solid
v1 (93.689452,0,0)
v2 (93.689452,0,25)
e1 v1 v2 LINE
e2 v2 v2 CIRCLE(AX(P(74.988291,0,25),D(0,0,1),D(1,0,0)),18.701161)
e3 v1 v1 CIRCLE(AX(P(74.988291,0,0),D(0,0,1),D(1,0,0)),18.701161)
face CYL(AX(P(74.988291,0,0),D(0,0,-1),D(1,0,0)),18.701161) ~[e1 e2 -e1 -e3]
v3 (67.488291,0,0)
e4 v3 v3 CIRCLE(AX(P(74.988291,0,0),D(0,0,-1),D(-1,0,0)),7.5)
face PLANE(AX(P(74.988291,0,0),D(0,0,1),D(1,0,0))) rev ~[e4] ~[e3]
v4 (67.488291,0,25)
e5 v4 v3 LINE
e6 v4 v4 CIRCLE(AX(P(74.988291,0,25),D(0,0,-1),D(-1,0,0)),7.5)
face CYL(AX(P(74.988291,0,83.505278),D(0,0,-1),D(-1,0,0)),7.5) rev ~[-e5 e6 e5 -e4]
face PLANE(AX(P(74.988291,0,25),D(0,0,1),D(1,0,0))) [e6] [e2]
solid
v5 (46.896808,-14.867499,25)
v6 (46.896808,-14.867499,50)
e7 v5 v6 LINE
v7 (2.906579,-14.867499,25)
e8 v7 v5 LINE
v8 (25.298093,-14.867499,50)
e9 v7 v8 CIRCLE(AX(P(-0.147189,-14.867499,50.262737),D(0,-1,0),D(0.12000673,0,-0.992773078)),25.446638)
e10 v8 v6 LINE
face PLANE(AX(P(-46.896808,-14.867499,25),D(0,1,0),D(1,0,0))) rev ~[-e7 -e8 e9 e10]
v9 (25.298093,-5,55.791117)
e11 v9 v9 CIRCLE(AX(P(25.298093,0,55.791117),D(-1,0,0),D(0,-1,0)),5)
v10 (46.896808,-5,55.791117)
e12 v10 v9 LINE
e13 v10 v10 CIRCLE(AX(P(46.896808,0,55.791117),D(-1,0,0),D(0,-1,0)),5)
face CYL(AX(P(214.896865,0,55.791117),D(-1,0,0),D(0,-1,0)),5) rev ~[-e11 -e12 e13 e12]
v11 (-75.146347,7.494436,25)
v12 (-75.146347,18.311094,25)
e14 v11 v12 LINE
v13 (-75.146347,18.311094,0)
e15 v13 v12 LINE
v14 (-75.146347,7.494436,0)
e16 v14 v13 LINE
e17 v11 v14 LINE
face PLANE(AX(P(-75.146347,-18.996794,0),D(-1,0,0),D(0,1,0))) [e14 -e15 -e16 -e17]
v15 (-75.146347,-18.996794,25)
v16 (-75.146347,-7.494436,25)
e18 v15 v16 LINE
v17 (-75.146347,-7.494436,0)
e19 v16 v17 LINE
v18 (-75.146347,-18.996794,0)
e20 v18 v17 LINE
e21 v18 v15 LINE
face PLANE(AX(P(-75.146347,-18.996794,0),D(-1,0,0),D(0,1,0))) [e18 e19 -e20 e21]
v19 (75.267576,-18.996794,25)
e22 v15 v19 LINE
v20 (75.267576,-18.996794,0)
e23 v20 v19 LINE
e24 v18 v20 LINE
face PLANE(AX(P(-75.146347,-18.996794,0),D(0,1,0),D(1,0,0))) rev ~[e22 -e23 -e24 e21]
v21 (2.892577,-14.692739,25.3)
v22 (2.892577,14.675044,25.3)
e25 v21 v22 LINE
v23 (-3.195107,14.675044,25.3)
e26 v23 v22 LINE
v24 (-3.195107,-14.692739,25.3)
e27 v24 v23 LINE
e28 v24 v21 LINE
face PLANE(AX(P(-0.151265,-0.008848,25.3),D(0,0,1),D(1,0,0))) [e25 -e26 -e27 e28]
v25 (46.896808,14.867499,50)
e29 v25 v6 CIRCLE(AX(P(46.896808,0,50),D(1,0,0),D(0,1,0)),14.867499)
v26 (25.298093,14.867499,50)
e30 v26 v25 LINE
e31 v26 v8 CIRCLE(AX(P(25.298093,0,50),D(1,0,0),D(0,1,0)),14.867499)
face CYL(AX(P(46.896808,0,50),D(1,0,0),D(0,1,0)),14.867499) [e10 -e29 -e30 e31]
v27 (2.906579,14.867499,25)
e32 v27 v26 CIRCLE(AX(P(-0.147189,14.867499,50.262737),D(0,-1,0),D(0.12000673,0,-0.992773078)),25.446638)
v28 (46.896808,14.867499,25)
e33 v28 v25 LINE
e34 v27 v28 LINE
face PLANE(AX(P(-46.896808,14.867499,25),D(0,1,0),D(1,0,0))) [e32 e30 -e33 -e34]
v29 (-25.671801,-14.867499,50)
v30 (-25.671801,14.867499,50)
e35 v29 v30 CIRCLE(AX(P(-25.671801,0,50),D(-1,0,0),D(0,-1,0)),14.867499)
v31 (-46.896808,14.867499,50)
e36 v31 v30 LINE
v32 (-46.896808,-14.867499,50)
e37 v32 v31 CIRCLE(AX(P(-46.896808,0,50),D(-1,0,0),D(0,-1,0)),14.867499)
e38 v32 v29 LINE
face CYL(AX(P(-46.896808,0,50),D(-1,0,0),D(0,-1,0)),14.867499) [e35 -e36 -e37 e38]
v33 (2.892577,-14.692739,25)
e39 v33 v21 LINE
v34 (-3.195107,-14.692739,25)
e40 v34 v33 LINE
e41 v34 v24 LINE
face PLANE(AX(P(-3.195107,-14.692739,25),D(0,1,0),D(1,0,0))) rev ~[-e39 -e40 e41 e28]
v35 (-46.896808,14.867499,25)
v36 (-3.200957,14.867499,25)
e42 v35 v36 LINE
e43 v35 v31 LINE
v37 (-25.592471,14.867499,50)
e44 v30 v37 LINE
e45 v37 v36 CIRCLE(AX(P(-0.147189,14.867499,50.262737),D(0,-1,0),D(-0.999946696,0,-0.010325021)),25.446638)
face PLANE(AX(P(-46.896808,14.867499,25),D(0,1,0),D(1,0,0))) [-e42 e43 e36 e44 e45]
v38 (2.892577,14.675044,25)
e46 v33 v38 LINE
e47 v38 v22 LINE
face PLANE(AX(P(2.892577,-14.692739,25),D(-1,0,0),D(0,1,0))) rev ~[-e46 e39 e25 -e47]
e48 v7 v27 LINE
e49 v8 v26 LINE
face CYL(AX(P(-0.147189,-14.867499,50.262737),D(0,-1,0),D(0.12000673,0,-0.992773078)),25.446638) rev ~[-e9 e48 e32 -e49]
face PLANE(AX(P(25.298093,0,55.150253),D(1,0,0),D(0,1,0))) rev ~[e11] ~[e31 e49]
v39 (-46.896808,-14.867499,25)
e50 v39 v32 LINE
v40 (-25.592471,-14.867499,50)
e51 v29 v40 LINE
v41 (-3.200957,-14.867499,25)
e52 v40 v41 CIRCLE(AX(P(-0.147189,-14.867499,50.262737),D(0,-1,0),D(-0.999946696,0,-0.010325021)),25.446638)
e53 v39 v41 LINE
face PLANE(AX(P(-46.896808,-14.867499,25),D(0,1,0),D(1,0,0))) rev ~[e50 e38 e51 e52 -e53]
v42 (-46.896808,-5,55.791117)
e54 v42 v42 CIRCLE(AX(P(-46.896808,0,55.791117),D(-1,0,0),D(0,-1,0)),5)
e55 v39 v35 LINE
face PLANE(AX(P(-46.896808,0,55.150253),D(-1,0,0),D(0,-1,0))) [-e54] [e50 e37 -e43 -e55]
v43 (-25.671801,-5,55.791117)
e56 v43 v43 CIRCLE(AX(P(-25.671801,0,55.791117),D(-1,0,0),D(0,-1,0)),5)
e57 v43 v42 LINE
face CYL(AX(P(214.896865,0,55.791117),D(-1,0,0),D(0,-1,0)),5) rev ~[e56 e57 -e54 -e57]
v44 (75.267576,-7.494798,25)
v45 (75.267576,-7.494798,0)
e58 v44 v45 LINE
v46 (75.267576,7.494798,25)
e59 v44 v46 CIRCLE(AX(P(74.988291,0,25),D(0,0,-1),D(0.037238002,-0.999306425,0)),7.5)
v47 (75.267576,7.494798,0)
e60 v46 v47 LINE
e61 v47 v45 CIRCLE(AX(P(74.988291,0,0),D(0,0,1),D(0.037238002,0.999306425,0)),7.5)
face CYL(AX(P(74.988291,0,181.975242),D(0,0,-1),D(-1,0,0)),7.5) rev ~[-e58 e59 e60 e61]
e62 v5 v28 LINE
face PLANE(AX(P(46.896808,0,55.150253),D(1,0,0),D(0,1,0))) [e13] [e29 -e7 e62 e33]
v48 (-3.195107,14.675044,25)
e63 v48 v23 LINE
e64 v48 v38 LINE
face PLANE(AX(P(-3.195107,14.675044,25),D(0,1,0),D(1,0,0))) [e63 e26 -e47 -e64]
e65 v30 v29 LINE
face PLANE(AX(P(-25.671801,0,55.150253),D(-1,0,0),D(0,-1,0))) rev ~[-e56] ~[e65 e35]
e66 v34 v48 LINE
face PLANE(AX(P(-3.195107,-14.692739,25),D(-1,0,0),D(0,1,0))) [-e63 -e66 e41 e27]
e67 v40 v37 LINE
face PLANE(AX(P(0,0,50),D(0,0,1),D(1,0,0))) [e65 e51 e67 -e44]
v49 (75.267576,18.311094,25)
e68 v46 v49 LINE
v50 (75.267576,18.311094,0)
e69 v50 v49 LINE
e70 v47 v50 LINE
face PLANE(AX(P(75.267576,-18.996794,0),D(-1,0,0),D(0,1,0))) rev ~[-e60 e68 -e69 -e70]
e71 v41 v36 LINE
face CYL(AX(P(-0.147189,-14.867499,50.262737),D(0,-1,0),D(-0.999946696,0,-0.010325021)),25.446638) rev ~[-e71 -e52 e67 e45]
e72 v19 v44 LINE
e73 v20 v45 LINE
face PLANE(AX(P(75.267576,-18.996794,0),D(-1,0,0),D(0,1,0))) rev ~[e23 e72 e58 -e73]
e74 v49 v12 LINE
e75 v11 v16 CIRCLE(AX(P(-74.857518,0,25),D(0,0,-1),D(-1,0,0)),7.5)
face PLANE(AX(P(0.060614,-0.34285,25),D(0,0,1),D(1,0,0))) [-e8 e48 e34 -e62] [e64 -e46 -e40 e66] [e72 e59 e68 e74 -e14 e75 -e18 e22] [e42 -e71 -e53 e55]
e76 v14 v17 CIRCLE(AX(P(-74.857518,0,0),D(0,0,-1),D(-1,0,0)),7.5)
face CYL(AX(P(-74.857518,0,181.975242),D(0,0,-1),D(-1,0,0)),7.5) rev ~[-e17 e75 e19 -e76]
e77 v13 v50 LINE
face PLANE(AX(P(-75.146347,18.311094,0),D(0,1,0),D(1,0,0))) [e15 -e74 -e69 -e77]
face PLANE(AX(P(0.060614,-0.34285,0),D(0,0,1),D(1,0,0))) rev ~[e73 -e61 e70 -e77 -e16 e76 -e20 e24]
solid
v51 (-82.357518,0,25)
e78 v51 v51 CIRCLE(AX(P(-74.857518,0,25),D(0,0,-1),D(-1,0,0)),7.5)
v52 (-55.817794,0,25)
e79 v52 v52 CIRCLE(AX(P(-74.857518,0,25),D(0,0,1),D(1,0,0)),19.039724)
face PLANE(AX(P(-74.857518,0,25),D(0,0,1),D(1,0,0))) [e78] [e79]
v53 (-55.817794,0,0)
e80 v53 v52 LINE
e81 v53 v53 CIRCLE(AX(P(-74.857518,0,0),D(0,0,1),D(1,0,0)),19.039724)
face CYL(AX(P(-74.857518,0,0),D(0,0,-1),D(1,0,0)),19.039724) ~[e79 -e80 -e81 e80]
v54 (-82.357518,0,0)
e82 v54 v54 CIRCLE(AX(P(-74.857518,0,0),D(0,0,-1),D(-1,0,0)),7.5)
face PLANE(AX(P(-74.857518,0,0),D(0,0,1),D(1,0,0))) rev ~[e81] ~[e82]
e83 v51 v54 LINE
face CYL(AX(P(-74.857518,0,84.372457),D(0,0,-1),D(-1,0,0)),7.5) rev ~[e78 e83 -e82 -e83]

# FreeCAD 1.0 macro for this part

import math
import FreeCAD as App
import Part
import Sketcher

V = App.Vector
Q = App.Units.Quantity

doc = App.newDocument("Part")
body = doc.addObject("PartDesign::Body", "Body")

sketch1 = body.newObject("Sketcher::SketchObject", "Sketch")
sketch1.AttachmentSupport = (doc.getObject("XY_Plane"), [""])
sketch1.MapMode = "FlatFace"
sketch1.addGeometry(Part.Circle(V(-75, 0, 0), V(0, 0, 1), 19), False)
sketch1.addConstraint(Sketcher.Constraint("PointOnObject", 0, 3, -1))
sketch1.addConstraint(Sketcher.Constraint("Diameter", 0, Q("38.079447 mm")))
sketch1.addConstraint(Sketcher.Constraint("DistanceX", 0, 3, -1, 1, Q("74.857518 mm")))
pad1 = body.newObject("PartDesign::Pad", "Pad")
pad1.Profile = sketch1
pad1.Length = 25

sketch2 = body.newObject("Sketcher::SketchObject", "Sketch001")
sketch2.AttachmentSupport = (doc.getObject("XY_Plane"), [""])
sketch2.MapMode = "FlatFace"
sketch2.AttachmentOffset = App.Placement(V(0, 0, 25), App.Rotation())
sketch2.addGeometry(Part.Circle(V(-75, 0, 0), V(0, 0, 1), 8), False)
sketch2.addConstraint(Sketcher.Constraint("PointOnObject", 0, 3, -1))
sketch2.addConstraint(Sketcher.Constraint("Diameter", 0, Q("15 mm")))
sketch2.addConstraint(Sketcher.Constraint("DistanceX", 0, 3, -1, 1, Q("74.857518 mm")))
doc.recompute()
hole = body.newObject("PartDesign::Hole", "Hole")
hole.Profile = sketch2
hole.ThreadType = "None"
hole.Diameter = 15
hole.DepthType = "ThroughAll"
body2 = doc.addObject("PartDesign::Body", "Body001")

sketch3 = body2.newObject("Sketcher::SketchObject", "Sketch002")
sketch3.AttachmentSupport = (doc.getObject("XY_Plane001"), [""])
sketch3.MapMode = "FlatFace"
sketch3.addGeometry(Part.Circle(V(75, 0, 0), V(0, 0, 1), 19), False)
sketch3.addConstraint(Sketcher.Constraint("PointOnObject", 0, 3, -1))
sketch3.addConstraint(Sketcher.Constraint("Diameter", 0, Q("37.402323 mm")))
sketch3.addConstraint(Sketcher.Constraint("DistanceX", -1, 1, 0, 3, Q("74.988291 mm")))
pad2 = body2.newObject("PartDesign::Pad", "Pad001")
pad2.Profile = sketch3
pad2.Length = 25

sketch4 = body2.newObject("Sketcher::SketchObject", "Sketch003")
sketch4.AttachmentSupport = (doc.getObject("XY_Plane001"), [""])
sketch4.MapMode = "FlatFace"
sketch4.AttachmentOffset = App.Placement(V(0, 0, 25), App.Rotation())
sketch4.addGeometry(Part.Circle(V(75, 0, 0), V(0, 0, 1), 8), False)
sketch4.addConstraint(Sketcher.Constraint("PointOnObject", 0, 3, -1))
sketch4.addConstraint(Sketcher.Constraint("Diameter", 0, Q("15 mm")))
sketch4.addConstraint(Sketcher.Constraint("DistanceX", -1, 1, 0, 3, Q("74.988291 mm")))
doc.recompute()
hole2 = body2.newObject("PartDesign::Hole", "Hole001")
hole2.Profile = sketch4
hole2.ThreadType = "None"
hole2.Diameter = 15
hole2.DepthType = "ThroughAll"
body3 = doc.addObject("PartDesign::Body", "Body002")

sketch5 = body3.newObject("Sketcher::SketchObject", "Sketch004")
sketch5.AttachmentSupport = (doc.getObject("XY_Plane002"), [""])
sketch5.MapMode = "FlatFace"
sketch5.addGeometry(Part.LineSegment(V(-75, 18, 0), V(-75, -19, 0)), False)
sketch5.addGeometry(Part.LineSegment(V(-75, -19, 0), V(75, -19, 0)), False)
sketch5.addGeometry(Part.LineSegment(V(75, -19, 0), V(75, 18, 0)), False)
sketch5.addGeometry(Part.LineSegment(V(75, 18, 0), V(-75, 18, 0)), False)
sketch5.addConstraint(Sketcher.Constraint("Coincident", 0, 2, 1, 1))
sketch5.addConstraint(Sketcher.Constraint("Coincident", 1, 2, 2, 1))
sketch5.addConstraint(Sketcher.Constraint("Coincident", 2, 2, 3, 1))
sketch5.addConstraint(Sketcher.Constraint("Coincident", 3, 2, 0, 1))
sketch5.addConstraint(Sketcher.Constraint("Vertical", 0))
sketch5.addConstraint(Sketcher.Constraint("Horizontal", 1))
sketch5.addConstraint(Sketcher.Constraint("Vertical", 2))
sketch5.addConstraint(Sketcher.Constraint("Horizontal", 3))
sketch5.addConstraint(Sketcher.Constraint("DistanceY", 0, 2, 0, 1, Q("37.307888 mm")))
sketch5.addConstraint(Sketcher.Constraint("DistanceX", 1, 1, 1, 2, Q("150.413923 mm")))
sketch5.addConstraint(Sketcher.Constraint("DistanceX", 0, 2, -1, 1, Q("75.146347 mm")))
sketch5.addConstraint(Sketcher.Constraint("DistanceY", 0, 2, -1, 1, Q("18.996794 mm")))
pad3 = body3.newObject("PartDesign::Pad", "Pad002")
pad3.Profile = sketch5
pad3.Length = 25

sketch6 = body3.newObject("Sketcher::SketchObject", "Sketch005")
sketch6.AttachmentSupport = (doc.getObject("XY_Plane002"), [""])
sketch6.MapMode = "FlatFace"
sketch6.AttachmentOffset = App.Placement(V(0, 0, 25), App.Rotation())
sketch6.addGeometry(Part.Circle(V(-75, 0, 0), V(0, 0, 1), 8), False)
sketch6.addConstraint(Sketcher.Constraint("PointOnObject", 0, 3, -1))
sketch6.addConstraint(Sketcher.Constraint("Diameter", 0, Q("15 mm")))
sketch6.addConstraint(Sketcher.Constraint("DistanceX", 0, 3, -1, 1, Q("74.857518 mm")))
doc.recompute()
hole3 = body3.newObject("PartDesign::Hole", "Hole002")
hole3.Profile = sketch6
hole3.ThreadType = "None"
hole3.Diameter = 15
hole3.DepthType = "ThroughAll"

sketch7 = body3.newObject("Sketcher::SketchObject", "Sketch006")
sketch7.AttachmentSupport = (doc.getObject("XY_Plane002"), [""])
sketch7.MapMode = "FlatFace"
sketch7.AttachmentOffset = App.Placement(V(0, 0, 25), App.Rotation())
sketch7.addGeometry(Part.Circle(V(75, 0, 0), V(0, 0, 1), 8), False)
sketch7.addConstraint(Sketcher.Constraint("PointOnObject", 0, 3, -1))
sketch7.addConstraint(Sketcher.Constraint("Diameter", 0, Q("15 mm")))
sketch7.addConstraint(Sketcher.Constraint("DistanceX", -1, 1, 0, 3, Q("74.988291 mm")))
doc.recompute()
hole4 = body3.newObject("PartDesign::Hole", "Hole003")
hole4.Profile = sketch7
hole4.ThreadType = "None"
hole4.Diameter = 15
hole4.DepthType = "ThroughAll"

sketch8 = body3.newObject("Sketcher::SketchObject", "Sketch007")
sketch8.AttachmentSupport = (doc.getObject("XY_Plane002"), [""])
sketch8.MapMode = "FlatFace"
sketch8.AttachmentOffset = App.Placement(V(0, 0, 25), App.Rotation())
sketch8.addGeometry(Part.LineSegment(V(-47, 15, 0), V(-47, -15, 0)), False)
sketch8.addGeometry(Part.LineSegment(V(-47, -15, 0), V(47, -15, 0)), False)
sketch8.addGeometry(Part.LineSegment(V(47, -15, 0), V(47, 15, 0)), False)
sketch8.addGeometry(Part.LineSegment(V(47, 15, 0), V(-47, 15, 0)), False)
sketch8.addConstraint(Sketcher.Constraint("Coincident", 0, 2, 1, 1))
sketch8.addConstraint(Sketcher.Constraint("Coincident", 1, 2, 2, 1))
sketch8.addConstraint(Sketcher.Constraint("Coincident", 2, 2, 3, 1))
sketch8.addConstraint(Sketcher.Constraint("Coincident", 3, 2, 0, 1))
sketch8.addConstraint(Sketcher.Constraint("Vertical", 0))
sketch8.addConstraint(Sketcher.Constraint("Horizontal", 1))
sketch8.addConstraint(Sketcher.Constraint("Vertical", 2))
sketch8.addConstraint(Sketcher.Constraint("Horizontal", 3))
sketch8.addConstraint(Sketcher.Constraint("Symmetric", 0, 2, 2, 2, -1, 1))
sketch8.addConstraint(Sketcher.Constraint("DistanceY", 0, 2, 0, 1, Q("29.734999 mm")))
sketch8.addConstraint(Sketcher.Constraint("DistanceX", 1, 1, 1, 2, Q("93.793616 mm")))
pad4 = body3.newObject("PartDesign::Pad", "Pad003")
pad4.Profile = sketch8
pad4.Length = 25

sketch9 = body3.newObject("Sketcher::SketchObject", "Sketch008")
sketch9.AttachmentSupport = (doc.getObject("YZ_Plane002"), [""])
sketch9.MapMode = "FlatFace"
sketch9.AttachmentOffset = App.Placement(V(0, 0, 46.896808), App.Rotation())
sketch9.addGeometry(Part.LineSegment(V(-15, 50, 0), V(15, 50, 0)), False)
sketch9.addGeometry(Part.ArcOfCircle(Part.Circle(V(0, 50, 0), V(0, 0, 1), 15), math.radians(0), math.radians(180)), False)
sketch9.addConstraint(Sketcher.Constraint("Coincident", 0, 1, 1, 2))
sketch9.addConstraint(Sketcher.Constraint("Coincident", 1, 1, 0, 2))
sketch9.addConstraint(Sketcher.Constraint("Horizontal", 0))
sketch9.addConstraint(Sketcher.Constraint("PointOnObject", 1, 3, -2))
sketch9.addConstraint(Sketcher.Constraint("Horizontal", 1, 3, 0, 1))
sketch9.addConstraint(Sketcher.Constraint("DistanceY", -1, 1, 1, 3, Q("50 mm")))
sketch9.addConstraint(Sketcher.Constraint("Radius", 1, Q("14.867499 mm")))
pad5 = body3.newObject("PartDesign::Pad", "Pad004")
pad5.Profile = sketch9
pad5.Length = 21.598715
pad5.Reversed = True

sketch10 = body3.newObject("Sketcher::SketchObject", "Sketch009")
sketch10.AttachmentSupport = (doc.getObject("XZ_Plane002"), [""])
sketch10.MapMode = "FlatFace"
sketch10.AttachmentOffset = App.Placement(V(0, 0, 14.867499), App.Rotation())
sketch10.addGeometry(Part.LineSegment(V(25, 50, 0), V(-26, 50, 0)), False)
sketch10.addGeometry(Part.ArcOfCircle(Part.Circle(V(0, 50, 0), V(0, 0, 1), 25), math.radians(-179), math.radians(-97)), False)
sketch10.addGeometry(Part.LineSegment(V(-3, 25, 0), V(3, 25, 0)), False)
sketch10.addGeometry(Part.ArcOfCircle(Part.Circle(V(0, 50, 0), V(0, 0, 1), 25), math.radians(-83), math.radians(-1)), False)
sketch10.addConstraint(Sketcher.Constraint("Coincident", 0, 2, 1, 1))
sketch10.addConstraint(Sketcher.Constraint("Coincident", 1, 2, 2, 1))
sketch10.addConstraint(Sketcher.Constraint("Coincident", 2, 2, 3, 1))
sketch10.addConstraint(Sketcher.Constraint("Coincident", 3, 2, 0, 1))
sketch10.addConstraint(Sketcher.Constraint("Horizontal", 0))
sketch10.addConstraint(Sketcher.Constraint("Horizontal", 2))
sketch10.addConstraint(Sketcher.Constraint("Coincident", 3, 3, 1, 3))
sketch10.addConstraint(Sketcher.Constraint("Equal", 1, 3))
sketch10.addConstraint(Sketcher.Constraint("DistanceY", -1, 1, 0, 2, Q("50 mm")))
sketch10.addConstraint(Sketcher.Constraint("DistanceY", -1, 1, 1, 2, Q("25 mm")))
sketch10.addConstraint(Sketcher.Constraint("Radius", 1, Q("25.446638 mm")))
sketch10.addConstraint(Sketcher.Constraint("DistanceX", 2, 1, 2, 2, Q("6.107536 mm")))
sketch10.addConstraint(Sketcher.Constraint("DistanceX", 1, 3, -1, 1, Q("0.147189 mm")))
pocket1 = body3.newObject("PartDesign::Pocket", "Pocket")
pocket1.Profile = sketch10
pocket1.Type = "ThroughAll"

sketch11 = body3.newObject("Sketcher::SketchObject", "Sketch010")
sketch11.AttachmentSupport = (doc.getObject("YZ_Plane002"), [""])
sketch11.MapMode = "FlatFace"
sketch11.AttachmentOffset = App.Placement(V(0, 0, -46.896808), App.Rotation())
sketch11.addGeometry(Part.LineSegment(V(15, 50, 0), V(-15, 50, 0)), False)
sketch11.addGeometry(Part.ArcOfCircle(Part.Circle(V(0, 50, 0), V(0, 0, 1), 15), math.radians(0), math.radians(180)), False)
sketch11.addConstraint(Sketcher.Constraint("Coincident", 0, 1, 1, 1))
sketch11.addConstraint(Sketcher.Constraint("Coincident", 1, 2, 0, 2))
sketch11.addConstraint(Sketcher.Constraint("Horizontal", 0))
sketch11.addConstraint(Sketcher.Constraint("PointOnObject", 1, 3, -2))
sketch11.addConstraint(Sketcher.Constraint("Horizontal", 1, 3, 0, 1))
sketch11.addConstraint(Sketcher.Constraint("DistanceY", -1, 1, 1, 3, Q("50 mm")))
sketch11.addConstraint(Sketcher.Constraint("Radius", 1, Q("14.867499 mm")))
pad6 = body3.newObject("PartDesign::Pad", "Pad005")
pad6.Profile = sketch11
pad6.Length = 21.225007

sketch12 = body3.newObject("Sketcher::SketchObject", "Sketch011")
sketch12.AttachmentSupport = (doc.getObject("YZ_Plane002"), [""])
sketch12.MapMode = "FlatFace"
sketch12.AttachmentOffset = App.Placement(V(0, 0, 46.896808), App.Rotation())
sketch12.addGeometry(Part.Circle(V(0, 56, 0), V(0, 0, 1), 5), False)
sketch12.addConstraint(Sketcher.Constraint("PointOnObject", 0, 3, -2))
sketch12.addConstraint(Sketcher.Constraint("Diameter", 0, Q("10 mm")))
sketch12.addConstraint(Sketcher.Constraint("DistanceY", -1, 1, 0, 3, Q("55.791117 mm")))
doc.recompute()
hole5 = body3.newObject("PartDesign::Hole", "Hole004")
hole5.Profile = sketch12
hole5.ThreadType = "None"
hole5.Diameter = 10
hole5.DepthType = "ThroughAll"

sketch13 = body3.newObject("Sketcher::SketchObject", "Sketch012")
sketch13.AttachmentSupport = (doc.getObject("XY_Plane002"), [""])
sketch13.MapMode = "FlatFace"
sketch13.AttachmentOffset = App.Placement(V(0, 0, 25), App.Rotation())
sketch13.addGeometry(Part.LineSegment(V(-3, 15, 0), V(-3, -15, 0)), False)
sketch13.addGeometry(Part.LineSegment(V(-3, -15, 0), V(3, -15, 0)), False)
sketch13.addGeometry(Part.LineSegment(V(3, -15, 0), V(3, 15, 0)), False)
sketch13.addGeometry(Part.LineSegment(V(3, 15, 0), V(-3, 15, 0)), False)
sketch13.addConstraint(Sketcher.Constraint("Coincident", 0, 2, 1, 1))
sketch13.addConstraint(Sketcher.Constraint("Coincident", 1, 2, 2, 1))
sketch13.addConstraint(Sketcher.Constraint("Coincident", 2, 2, 3, 1))
sketch13.addConstraint(Sketcher.Constraint("Coincident", 3, 2, 0, 1))
sketch13.addConstraint(Sketcher.Constraint("Vertical", 0))
sketch13.addConstraint(Sketcher.Constraint("Horizontal", 1))
sketch13.addConstraint(Sketcher.Constraint("Vertical", 2))
sketch13.addConstraint(Sketcher.Constraint("Horizontal", 3))
sketch13.addConstraint(Sketcher.Constraint("DistanceX", 1, 1, 1, 2, Q("6.087684 mm")))
sketch13.addConstraint(Sketcher.Constraint("DistanceY", 0, 2, 0, 1, Q("29.367782 mm")))
sketch13.addConstraint(Sketcher.Constraint("DistanceY", 0, 2, -1, 1, Q("14.692739 mm")))
sketch13.addConstraint(Sketcher.Constraint("DistanceX", 0, 2, -1, 1, Q("3.195107 mm")))
pad7 = body3.newObject("PartDesign::Pad", "Pad006")
pad7.Profile = sketch13
pad7.Length = 0.3

doc.recompute()
